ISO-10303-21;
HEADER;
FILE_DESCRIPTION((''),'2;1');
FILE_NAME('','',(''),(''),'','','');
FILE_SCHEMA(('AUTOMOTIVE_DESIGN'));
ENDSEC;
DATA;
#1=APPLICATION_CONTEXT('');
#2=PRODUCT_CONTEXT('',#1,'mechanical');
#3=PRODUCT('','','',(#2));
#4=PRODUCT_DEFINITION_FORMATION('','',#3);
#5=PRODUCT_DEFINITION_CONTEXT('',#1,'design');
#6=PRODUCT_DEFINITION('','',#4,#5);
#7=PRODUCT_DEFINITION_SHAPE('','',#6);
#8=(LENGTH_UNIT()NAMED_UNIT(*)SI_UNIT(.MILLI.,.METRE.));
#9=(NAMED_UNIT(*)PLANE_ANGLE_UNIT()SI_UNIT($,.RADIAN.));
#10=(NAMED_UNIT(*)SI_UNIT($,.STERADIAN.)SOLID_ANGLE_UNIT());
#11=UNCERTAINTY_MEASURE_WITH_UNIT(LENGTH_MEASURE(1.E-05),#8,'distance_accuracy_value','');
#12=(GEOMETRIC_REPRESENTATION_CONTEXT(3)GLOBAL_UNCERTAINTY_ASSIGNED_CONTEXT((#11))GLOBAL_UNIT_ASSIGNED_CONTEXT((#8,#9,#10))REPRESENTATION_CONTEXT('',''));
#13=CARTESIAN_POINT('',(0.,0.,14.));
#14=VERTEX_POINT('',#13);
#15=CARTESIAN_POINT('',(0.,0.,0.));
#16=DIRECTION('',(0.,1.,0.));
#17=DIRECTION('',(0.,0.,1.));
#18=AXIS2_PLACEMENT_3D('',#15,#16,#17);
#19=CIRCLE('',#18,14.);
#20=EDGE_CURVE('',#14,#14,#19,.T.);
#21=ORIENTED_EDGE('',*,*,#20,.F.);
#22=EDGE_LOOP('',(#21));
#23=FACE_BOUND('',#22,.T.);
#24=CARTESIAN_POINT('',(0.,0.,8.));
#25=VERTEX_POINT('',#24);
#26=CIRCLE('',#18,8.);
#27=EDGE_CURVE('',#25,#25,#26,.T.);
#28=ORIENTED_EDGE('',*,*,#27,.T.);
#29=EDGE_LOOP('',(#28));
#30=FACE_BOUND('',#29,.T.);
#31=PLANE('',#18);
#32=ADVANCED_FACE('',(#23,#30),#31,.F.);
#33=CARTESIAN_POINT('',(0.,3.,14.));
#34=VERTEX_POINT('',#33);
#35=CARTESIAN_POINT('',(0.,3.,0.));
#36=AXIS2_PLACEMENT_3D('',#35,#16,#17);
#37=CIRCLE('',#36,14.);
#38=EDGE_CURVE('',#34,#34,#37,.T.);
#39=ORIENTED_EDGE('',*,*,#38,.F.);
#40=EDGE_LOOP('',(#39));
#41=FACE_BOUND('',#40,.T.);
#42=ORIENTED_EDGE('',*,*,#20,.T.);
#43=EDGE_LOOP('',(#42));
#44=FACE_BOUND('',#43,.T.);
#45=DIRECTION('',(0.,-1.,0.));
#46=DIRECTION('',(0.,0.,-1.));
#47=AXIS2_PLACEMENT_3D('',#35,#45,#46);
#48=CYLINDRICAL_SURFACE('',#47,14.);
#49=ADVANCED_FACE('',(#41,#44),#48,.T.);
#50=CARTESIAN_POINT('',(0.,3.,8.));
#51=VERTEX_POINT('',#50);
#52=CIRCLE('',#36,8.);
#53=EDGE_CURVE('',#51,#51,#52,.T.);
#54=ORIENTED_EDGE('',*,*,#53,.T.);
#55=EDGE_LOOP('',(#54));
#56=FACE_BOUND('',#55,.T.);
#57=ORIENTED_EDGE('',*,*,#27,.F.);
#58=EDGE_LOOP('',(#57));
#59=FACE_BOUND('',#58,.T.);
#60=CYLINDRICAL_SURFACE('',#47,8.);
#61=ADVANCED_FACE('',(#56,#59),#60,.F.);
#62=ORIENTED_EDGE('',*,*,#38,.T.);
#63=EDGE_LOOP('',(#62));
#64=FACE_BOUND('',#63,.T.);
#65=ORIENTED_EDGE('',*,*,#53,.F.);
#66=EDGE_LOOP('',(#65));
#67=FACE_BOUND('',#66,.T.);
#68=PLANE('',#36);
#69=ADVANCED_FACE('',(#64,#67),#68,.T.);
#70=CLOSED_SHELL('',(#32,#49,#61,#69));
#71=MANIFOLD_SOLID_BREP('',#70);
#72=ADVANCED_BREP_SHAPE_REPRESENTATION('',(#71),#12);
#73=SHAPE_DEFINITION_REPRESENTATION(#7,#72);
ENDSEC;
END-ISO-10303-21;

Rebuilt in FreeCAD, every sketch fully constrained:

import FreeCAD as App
import Part
import Sketcher

V = App.Vector

doc = App.newDocument("Part")
body = doc.addObject("PartDesign::Body", "Body")

# Sketch on XZ plane
sketch1 = doc.addObject("Sketcher::SketchObject", "Sketch")
body.addObject(sketch1)
sketch1.AttachmentSupport = (doc.XZ_Plane, [""])
sketch1.MapMode = "FlatFace"
sketch1.addGeometry(Part.Circle(V(0, 0, 0), V(0, 0, 1), 14), False)
sketch1.addGeometry(Part.Circle(V(0, 0, 0), V(0, 0, 1), 8), False)
sketch1.addConstraint(Sketcher.Constraint("Coincident", 0, 3, -1, 1))
sketch1.addConstraint(Sketcher.Constraint("Coincident", 1, 3, -1, 1))
sketch1.addConstraint(Sketcher.Constraint("Diameter", 0, 28.0))
sketch1.addConstraint(Sketcher.Constraint("Diameter", 1, 16.0))
pad1 = doc.addObject("PartDesign::Pad", "Pad")
body.addObject(pad1)
pad1.Profile = sketch1
pad1.Length = 3
pad1.Reversed = True

doc.recompute()
